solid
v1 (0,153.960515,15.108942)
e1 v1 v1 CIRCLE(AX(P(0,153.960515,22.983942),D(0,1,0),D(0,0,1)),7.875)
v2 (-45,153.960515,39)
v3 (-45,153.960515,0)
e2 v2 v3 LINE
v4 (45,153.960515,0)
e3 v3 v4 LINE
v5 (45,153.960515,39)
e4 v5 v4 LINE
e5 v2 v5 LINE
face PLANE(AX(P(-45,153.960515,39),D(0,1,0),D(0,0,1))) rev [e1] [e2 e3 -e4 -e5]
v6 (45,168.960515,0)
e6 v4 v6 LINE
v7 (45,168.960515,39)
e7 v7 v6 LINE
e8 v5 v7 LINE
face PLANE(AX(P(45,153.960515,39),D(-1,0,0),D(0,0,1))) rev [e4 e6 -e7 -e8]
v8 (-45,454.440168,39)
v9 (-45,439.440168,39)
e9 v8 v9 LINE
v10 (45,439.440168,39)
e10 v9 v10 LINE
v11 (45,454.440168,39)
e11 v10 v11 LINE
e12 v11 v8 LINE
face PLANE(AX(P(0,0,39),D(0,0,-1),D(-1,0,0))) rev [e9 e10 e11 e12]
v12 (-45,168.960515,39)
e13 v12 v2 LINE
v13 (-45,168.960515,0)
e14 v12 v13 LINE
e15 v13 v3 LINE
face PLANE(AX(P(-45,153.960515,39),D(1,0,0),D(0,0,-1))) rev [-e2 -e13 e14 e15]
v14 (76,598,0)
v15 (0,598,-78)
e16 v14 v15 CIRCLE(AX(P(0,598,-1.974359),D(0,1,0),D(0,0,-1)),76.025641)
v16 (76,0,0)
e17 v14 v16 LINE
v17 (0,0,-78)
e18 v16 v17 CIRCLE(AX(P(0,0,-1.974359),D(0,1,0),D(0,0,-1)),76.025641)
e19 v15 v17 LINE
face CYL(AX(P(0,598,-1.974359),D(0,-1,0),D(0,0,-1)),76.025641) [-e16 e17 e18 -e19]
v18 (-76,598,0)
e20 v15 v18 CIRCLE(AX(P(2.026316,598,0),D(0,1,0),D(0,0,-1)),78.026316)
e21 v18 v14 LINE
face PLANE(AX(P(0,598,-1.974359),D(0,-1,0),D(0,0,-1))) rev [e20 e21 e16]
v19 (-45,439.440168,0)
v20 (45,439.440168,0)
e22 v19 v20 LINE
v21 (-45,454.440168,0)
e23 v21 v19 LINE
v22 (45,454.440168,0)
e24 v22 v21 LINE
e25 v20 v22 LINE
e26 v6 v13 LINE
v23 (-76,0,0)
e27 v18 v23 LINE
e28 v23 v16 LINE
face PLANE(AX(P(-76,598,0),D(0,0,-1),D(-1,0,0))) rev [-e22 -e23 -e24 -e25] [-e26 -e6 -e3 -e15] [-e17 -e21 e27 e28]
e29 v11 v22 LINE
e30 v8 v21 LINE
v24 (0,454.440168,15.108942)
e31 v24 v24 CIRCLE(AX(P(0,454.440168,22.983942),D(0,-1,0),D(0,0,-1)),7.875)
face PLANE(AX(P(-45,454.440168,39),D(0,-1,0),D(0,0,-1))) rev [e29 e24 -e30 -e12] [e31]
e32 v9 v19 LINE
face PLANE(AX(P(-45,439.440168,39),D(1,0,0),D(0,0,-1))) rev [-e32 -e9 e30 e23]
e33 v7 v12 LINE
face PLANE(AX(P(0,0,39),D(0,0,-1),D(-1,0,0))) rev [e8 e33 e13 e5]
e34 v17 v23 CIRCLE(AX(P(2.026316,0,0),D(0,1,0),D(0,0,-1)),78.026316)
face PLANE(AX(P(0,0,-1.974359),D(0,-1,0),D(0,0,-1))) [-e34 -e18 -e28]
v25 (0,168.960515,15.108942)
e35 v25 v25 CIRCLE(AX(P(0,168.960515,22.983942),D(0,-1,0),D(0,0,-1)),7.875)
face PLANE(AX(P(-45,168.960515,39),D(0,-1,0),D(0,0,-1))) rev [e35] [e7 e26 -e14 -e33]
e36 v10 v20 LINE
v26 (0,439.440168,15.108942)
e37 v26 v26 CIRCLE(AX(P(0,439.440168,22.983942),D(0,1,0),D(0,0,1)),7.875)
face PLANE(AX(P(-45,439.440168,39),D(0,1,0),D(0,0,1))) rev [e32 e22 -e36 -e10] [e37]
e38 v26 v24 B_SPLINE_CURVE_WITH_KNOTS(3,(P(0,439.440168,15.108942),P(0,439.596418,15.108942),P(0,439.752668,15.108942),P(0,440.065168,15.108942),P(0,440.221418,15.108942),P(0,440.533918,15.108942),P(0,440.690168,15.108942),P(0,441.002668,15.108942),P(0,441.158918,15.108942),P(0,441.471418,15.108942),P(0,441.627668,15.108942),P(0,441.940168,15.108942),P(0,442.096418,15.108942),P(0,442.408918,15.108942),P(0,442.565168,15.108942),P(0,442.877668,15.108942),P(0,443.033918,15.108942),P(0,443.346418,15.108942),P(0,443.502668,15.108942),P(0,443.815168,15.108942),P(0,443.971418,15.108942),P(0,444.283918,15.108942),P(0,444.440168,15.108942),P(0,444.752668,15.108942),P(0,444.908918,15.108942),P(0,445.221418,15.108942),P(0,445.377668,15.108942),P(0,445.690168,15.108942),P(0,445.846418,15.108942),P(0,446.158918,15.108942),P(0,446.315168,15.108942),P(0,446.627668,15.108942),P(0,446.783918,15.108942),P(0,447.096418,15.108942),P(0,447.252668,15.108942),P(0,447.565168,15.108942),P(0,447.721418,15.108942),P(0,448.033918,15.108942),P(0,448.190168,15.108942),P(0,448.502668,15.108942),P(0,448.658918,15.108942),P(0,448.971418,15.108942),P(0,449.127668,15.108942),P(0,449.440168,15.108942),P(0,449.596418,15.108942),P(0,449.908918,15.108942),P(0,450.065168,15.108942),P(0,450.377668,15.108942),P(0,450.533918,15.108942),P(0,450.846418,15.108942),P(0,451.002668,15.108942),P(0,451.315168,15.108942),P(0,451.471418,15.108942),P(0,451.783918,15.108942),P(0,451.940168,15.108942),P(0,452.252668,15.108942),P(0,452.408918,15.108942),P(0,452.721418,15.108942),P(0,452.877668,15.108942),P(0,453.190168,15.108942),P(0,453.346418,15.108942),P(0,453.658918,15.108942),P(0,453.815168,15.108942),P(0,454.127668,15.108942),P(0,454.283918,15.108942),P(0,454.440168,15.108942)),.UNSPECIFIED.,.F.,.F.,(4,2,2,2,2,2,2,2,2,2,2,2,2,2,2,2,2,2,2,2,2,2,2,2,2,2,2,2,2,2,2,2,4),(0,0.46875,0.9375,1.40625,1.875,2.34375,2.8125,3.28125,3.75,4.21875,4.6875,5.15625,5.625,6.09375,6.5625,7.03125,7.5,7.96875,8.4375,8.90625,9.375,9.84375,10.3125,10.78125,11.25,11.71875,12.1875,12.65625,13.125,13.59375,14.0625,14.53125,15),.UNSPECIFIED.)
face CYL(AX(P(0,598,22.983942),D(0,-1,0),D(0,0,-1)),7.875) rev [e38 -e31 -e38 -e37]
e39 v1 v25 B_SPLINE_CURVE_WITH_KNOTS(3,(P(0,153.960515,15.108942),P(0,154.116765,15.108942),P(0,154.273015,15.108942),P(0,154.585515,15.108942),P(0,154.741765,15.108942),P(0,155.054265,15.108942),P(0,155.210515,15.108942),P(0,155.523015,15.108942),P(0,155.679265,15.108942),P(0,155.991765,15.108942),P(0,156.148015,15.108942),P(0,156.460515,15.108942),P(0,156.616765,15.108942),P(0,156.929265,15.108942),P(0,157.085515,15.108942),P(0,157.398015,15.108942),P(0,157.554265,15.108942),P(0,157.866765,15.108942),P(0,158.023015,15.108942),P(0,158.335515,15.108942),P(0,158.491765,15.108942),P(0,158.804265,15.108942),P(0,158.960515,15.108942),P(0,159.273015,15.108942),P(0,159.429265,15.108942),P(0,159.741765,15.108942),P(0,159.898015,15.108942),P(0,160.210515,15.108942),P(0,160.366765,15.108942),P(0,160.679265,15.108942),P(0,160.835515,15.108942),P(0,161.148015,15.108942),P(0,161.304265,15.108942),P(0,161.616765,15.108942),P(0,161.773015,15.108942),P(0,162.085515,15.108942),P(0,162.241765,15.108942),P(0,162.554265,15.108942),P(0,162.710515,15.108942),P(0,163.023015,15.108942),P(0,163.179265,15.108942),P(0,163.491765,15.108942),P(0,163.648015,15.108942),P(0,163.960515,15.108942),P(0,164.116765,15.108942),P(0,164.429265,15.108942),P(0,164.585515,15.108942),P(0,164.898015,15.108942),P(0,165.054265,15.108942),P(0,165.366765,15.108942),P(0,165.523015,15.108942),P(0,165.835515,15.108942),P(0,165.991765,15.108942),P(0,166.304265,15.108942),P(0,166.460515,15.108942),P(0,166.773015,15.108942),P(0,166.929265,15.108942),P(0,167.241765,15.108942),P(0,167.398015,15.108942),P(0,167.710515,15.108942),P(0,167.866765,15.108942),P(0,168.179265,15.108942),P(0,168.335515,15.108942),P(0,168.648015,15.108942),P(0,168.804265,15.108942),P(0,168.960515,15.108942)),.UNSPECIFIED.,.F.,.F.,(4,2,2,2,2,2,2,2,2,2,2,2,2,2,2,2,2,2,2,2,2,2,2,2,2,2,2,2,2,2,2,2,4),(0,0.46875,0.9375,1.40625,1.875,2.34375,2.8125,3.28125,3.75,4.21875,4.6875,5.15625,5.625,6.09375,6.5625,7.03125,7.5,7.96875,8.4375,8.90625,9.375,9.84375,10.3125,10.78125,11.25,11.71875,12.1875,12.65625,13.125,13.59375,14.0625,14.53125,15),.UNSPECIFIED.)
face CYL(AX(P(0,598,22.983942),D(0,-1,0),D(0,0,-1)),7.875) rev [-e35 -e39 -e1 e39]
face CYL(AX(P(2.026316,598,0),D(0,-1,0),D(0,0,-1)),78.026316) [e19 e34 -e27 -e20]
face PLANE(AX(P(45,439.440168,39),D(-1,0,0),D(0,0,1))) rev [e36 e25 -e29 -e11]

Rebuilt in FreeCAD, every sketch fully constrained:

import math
import FreeCAD as App
import Part
import Sketcher
from FreeCAD import Vector


def add_polygon(sketch, points):
    """Adds a closed chain of lines whose ends are joined by coincident constraints."""
    first, n = sketch.GeometryCount, len(points)
    for a, b in zip(points, points[1:] + points[:1]):
        sketch.addGeometry(Part.LineSegment(App.Vector(*a, 0), App.Vector(*b, 0)), False)
    for i in range(n):
        sketch.addConstraint(Sketcher.Constraint("Coincident", first + i, 2, first + (i + 1) % n, 1))

doc = App.newDocument("Part")
body = doc.addObject("PartDesign::Body", "Body")

# Sketch on XZ plane
sketch1 = body.newObject("Sketcher::SketchObject", "Sketch")
sketch1.AttachmentSupport = (doc.getObject("XZ_Plane"), [""])
sketch1.MapMode = "FlatFace"
sketch1.addGeometry([
    Part.LineSegment(Vector(-76, 0, 0), Vector(76, 0, 0)),
    Part.ArcOfCircle(Part.Circle(Vector(0, -2, 0), Vector(0, 0, 1), 76), math.radians(-90), math.radians(1)),
    Part.ArcOfCircle(Part.Circle(Vector(2, 0, 0), Vector(0, 0, 1), 78), math.radians(180), math.radians(269)),
], False)
sketch1.addConstraint([
    Sketcher.Constraint("Coincident", 0, 2, 1, 2),
    Sketcher.Constraint("Coincident", 1, 1, 2, 2),
    Sketcher.Constraint("Coincident", 2, 1, 0, 1),
    Sketcher.Constraint("Horizontal", 0),
    Sketcher.Constraint("Symmetric", 0, 2, 2, 1, -1, 1),
    Sketcher.Constraint("PointOnObject", 1, 3, -2),
    Sketcher.Constraint("PointOnObject", 2, 3, -1),
    Sketcher.Constraint("PointOnObject", 1, 1, -2),
    Sketcher.Constraint("DistanceX", 0, 1, 0, 2, 152.0),
    Sketcher.Constraint("DistanceY", 1, 1, -1, 1, 78.0),
])
pad1 = body.newObject("PartDesign::Pad", "Pad")
pad1.Profile = sketch1
pad1.Length = 598
pad1.Reversed = True

# Sketch on XY plane
sketch2 = body.newObject("Sketcher::SketchObject", "Sketch001")
sketch2.AttachmentSupport = (doc.getObject("XY_Plane"), [""])
sketch2.MapMode = "FlatFace"
add_polygon(sketch2, [(-45, 454), (-45, 439), (45, 439), (45, 454)])  # lines 0-3
add_polygon(sketch2, [(-45, 169), (-45, 154), (45, 154), (45, 169)])  # lines 4-7
sketch2.addConstraint([
    Sketcher.Constraint("Vertical", 0),
    Sketcher.Constraint("Horizontal", 1),
    Sketcher.Constraint("Vertical", 2),
    Sketcher.Constraint("Horizontal", 3),
    Sketcher.Constraint("Vertical", 4),
    Sketcher.Constraint("Horizontal", 5),
    Sketcher.Constraint("Vertical", 6),
    Sketcher.Constraint("Horizontal", 7),
    Sketcher.Constraint("Vertical", 3, 2, 4, 2),
    Sketcher.Constraint("Vertical", 2, 2, 5, 2),
    Sketcher.Constraint("Equal", 2, 4),
    Sketcher.Constraint("DistanceX", 1, 1, 1, 2, 90.0),
    Sketcher.Constraint("DistanceY", 0, 2, 0, 1, 15.0),
    Sketcher.Constraint("DistanceX", 0, 2, -1, 1, 45.0),
    Sketcher.Constraint("DistanceY", -1, 1, 0, 2, 439.440168),
    Sketcher.Constraint("DistanceY", -1, 1, 4, 2, 153.960515),
])
pad2 = body.newObject("PartDesign::Pad", "Pad001")
pad2.Profile = sketch2
pad2.Length = 39

# Sketch on XZ plane
sketch3 = body.newObject("Sketcher::SketchObject", "Sketch002")
sketch3.AttachmentSupport = (doc.getObject("XZ_Plane"), [""])
sketch3.MapMode = "FlatFace"
sketch3.AttachmentOffset = App.Placement(Vector(0, 0, -153.960515), App.Rotation())
sketch3.addGeometry(Part.Circle(Vector(0, 23, 0), Vector(0, 0, 1), 8), False)
sketch3.addConstraint([
    Sketcher.Constraint("PointOnObject", 0, 3, -2),
    Sketcher.Constraint("Diameter", 0, 15.75),
    Sketcher.Constraint("DistanceY", -1, 1, 0, 3, 22.983942),
])
pocket1 = body.newObject("PartDesign::Pocket", "Pocket")
pocket1.Profile = sketch3
pocket1.Type = "ThroughAll"
pocket1.Midplane = True

doc.recompute()
